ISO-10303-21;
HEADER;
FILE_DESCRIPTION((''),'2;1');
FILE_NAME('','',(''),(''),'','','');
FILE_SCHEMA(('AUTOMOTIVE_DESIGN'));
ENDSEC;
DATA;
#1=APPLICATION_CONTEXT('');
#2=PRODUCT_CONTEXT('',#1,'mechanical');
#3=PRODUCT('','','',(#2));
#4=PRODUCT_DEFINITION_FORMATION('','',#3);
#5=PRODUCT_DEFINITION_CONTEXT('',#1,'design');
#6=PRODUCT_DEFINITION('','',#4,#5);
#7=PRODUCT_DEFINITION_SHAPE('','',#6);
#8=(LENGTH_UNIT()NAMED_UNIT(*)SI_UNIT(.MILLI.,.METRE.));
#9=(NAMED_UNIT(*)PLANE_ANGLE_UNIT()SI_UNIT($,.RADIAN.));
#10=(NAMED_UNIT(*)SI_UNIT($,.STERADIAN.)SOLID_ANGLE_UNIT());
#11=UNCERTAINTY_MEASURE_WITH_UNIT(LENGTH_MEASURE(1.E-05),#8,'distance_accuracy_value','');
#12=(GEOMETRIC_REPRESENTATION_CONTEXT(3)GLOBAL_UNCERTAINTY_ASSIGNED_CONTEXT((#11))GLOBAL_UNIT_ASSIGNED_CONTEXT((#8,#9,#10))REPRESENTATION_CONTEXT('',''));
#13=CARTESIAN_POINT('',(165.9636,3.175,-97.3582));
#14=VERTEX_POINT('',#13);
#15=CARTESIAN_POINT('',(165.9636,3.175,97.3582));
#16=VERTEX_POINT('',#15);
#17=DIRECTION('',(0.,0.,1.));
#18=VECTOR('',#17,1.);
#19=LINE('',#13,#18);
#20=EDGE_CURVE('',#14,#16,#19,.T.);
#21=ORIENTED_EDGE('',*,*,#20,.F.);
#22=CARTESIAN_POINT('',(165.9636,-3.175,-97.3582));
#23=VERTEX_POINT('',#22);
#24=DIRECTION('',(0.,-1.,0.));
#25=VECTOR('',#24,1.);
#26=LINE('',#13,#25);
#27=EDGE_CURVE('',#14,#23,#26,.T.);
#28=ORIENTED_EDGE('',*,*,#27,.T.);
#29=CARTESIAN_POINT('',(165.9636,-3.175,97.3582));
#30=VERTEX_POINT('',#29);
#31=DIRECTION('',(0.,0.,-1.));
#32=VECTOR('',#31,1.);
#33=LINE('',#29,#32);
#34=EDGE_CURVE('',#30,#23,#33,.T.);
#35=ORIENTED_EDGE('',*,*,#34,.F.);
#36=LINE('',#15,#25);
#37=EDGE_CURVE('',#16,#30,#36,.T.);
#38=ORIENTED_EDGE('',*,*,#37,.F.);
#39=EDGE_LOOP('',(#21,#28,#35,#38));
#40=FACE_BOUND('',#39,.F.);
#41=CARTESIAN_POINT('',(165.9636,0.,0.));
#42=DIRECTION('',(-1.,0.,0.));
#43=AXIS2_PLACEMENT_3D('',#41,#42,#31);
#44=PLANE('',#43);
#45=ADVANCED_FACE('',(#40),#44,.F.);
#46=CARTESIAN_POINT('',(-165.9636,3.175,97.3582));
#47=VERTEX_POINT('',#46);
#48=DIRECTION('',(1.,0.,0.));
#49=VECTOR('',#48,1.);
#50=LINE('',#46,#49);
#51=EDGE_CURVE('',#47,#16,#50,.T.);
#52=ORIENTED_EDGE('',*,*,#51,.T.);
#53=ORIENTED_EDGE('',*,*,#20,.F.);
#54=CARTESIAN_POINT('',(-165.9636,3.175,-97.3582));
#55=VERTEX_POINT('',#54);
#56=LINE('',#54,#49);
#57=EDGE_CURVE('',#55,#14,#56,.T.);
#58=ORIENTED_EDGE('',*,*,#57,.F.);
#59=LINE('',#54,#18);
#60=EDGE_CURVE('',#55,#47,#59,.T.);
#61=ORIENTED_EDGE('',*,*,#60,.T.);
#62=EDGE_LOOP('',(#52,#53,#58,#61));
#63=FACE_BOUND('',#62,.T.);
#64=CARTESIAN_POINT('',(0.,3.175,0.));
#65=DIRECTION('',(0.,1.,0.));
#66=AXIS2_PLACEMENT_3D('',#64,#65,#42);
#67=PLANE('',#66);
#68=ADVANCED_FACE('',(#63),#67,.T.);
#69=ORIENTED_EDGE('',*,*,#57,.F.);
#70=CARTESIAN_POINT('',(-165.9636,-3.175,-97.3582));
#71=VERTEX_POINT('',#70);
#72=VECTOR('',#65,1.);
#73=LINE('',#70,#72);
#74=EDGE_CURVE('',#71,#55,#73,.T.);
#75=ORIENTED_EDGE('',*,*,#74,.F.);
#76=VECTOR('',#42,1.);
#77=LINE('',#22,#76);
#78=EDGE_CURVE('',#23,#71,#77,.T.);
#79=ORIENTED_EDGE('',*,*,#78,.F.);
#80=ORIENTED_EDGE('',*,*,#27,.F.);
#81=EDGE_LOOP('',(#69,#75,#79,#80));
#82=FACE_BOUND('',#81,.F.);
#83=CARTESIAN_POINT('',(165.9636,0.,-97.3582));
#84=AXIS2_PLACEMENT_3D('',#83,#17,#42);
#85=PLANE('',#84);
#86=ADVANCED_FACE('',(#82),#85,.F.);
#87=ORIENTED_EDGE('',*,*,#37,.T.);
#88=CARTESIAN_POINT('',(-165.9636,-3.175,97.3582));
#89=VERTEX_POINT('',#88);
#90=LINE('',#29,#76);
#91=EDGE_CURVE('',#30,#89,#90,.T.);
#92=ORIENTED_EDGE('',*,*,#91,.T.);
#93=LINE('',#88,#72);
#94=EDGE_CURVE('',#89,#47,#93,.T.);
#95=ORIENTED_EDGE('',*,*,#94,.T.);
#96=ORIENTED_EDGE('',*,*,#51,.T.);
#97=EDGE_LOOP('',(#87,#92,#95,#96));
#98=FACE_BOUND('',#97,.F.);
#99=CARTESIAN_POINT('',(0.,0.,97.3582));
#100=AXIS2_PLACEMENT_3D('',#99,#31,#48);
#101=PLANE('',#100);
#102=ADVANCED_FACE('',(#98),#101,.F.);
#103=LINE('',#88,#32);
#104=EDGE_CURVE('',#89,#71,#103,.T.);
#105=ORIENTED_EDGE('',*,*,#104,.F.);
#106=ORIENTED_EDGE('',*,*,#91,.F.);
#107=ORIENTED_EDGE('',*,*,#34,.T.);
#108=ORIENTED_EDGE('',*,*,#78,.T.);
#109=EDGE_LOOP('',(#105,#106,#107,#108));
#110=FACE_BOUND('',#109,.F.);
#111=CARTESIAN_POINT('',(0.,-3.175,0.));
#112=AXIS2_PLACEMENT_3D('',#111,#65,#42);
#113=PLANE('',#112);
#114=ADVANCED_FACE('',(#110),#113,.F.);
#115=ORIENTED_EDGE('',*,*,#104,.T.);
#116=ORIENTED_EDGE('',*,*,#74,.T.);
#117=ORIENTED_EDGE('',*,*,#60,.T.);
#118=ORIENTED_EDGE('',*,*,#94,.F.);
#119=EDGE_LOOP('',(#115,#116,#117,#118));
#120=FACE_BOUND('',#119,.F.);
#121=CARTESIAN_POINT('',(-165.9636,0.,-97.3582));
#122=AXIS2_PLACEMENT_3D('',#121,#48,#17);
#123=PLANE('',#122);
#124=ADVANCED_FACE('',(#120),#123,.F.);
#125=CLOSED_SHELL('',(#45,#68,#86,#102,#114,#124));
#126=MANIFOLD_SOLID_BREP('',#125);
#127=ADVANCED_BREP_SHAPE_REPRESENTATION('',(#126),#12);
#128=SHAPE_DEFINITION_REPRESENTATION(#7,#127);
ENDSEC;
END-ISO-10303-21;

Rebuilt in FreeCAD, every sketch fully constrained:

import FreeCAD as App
import Part
import Sketcher
Q = App.Units.Quantity


def add_polygon(sketch, points):
    """Adds a closed chain of lines whose ends are joined by coincident constraints."""
    first, n = sketch.GeometryCount, len(points)
    for a, b in zip(points, points[1:] + points[:1]):
        sketch.addGeometry(Part.LineSegment(App.Vector(*a, 0), App.Vector(*b, 0)), False)
    for i in range(n):
        sketch.addConstraint(Sketcher.Constraint("Coincident", first + i, 2, first + (i + 1) % n, 1))

doc = App.newDocument("Part")
params = doc.addObject("Spreadsheet::Sheet", "Params")
for row, (alias, value) in enumerate([
    ("sketch1_width", "13.068 in"),
    ("sketch1_height", "7.666 in"),
    ("pad1_length", "0.25 in"),
], start=1):
    params.set(f"A{row}", alias)
    params.set(f"B{row}", "=" + value)
    params.setAlias(f"B{row}", alias)

body = doc.addObject("PartDesign::Body", "Body")

# Sketch on XZ plane
sketch1 = doc.addObject("Sketcher::SketchObject", "Sketch")
body.addObject(sketch1)
sketch1.AttachmentSupport = (doc.XZ_Plane, [""])
sketch1.MapMode = "FlatFace"
add_polygon(sketch1, [(166, -97), (-166, -97), (-166, 97), (166, 97)])  # lines 0-3
sketch1.addConstraint([
    Sketcher.Constraint("Horizontal", 0),
    Sketcher.Constraint("Vertical", 1),
    Sketcher.Constraint("Horizontal", 2),
    Sketcher.Constraint("Vertical", 3),
    Sketcher.Constraint("Symmetric", 0, 2, 2, 2, -1, 1),
    Sketcher.Constraint("DistanceX", 0, 2, 0, 1, Q("13.068 in")),
    Sketcher.Constraint("DistanceY", 1, 1, 1, 2, Q("7.666 in")),
])
sketch1.setExpression("Constraints[9]", "Params.sketch1_width")
sketch1.setExpression("Constraints[10]", "Params.sketch1_height")
pad1 = doc.addObject("PartDesign::Pad", "Pad")
body.addObject(pad1)
pad1.Profile = sketch1
pad1.setExpression("Length", "Params.pad1_length")
pad1.Midplane = True

doc.recompute()
